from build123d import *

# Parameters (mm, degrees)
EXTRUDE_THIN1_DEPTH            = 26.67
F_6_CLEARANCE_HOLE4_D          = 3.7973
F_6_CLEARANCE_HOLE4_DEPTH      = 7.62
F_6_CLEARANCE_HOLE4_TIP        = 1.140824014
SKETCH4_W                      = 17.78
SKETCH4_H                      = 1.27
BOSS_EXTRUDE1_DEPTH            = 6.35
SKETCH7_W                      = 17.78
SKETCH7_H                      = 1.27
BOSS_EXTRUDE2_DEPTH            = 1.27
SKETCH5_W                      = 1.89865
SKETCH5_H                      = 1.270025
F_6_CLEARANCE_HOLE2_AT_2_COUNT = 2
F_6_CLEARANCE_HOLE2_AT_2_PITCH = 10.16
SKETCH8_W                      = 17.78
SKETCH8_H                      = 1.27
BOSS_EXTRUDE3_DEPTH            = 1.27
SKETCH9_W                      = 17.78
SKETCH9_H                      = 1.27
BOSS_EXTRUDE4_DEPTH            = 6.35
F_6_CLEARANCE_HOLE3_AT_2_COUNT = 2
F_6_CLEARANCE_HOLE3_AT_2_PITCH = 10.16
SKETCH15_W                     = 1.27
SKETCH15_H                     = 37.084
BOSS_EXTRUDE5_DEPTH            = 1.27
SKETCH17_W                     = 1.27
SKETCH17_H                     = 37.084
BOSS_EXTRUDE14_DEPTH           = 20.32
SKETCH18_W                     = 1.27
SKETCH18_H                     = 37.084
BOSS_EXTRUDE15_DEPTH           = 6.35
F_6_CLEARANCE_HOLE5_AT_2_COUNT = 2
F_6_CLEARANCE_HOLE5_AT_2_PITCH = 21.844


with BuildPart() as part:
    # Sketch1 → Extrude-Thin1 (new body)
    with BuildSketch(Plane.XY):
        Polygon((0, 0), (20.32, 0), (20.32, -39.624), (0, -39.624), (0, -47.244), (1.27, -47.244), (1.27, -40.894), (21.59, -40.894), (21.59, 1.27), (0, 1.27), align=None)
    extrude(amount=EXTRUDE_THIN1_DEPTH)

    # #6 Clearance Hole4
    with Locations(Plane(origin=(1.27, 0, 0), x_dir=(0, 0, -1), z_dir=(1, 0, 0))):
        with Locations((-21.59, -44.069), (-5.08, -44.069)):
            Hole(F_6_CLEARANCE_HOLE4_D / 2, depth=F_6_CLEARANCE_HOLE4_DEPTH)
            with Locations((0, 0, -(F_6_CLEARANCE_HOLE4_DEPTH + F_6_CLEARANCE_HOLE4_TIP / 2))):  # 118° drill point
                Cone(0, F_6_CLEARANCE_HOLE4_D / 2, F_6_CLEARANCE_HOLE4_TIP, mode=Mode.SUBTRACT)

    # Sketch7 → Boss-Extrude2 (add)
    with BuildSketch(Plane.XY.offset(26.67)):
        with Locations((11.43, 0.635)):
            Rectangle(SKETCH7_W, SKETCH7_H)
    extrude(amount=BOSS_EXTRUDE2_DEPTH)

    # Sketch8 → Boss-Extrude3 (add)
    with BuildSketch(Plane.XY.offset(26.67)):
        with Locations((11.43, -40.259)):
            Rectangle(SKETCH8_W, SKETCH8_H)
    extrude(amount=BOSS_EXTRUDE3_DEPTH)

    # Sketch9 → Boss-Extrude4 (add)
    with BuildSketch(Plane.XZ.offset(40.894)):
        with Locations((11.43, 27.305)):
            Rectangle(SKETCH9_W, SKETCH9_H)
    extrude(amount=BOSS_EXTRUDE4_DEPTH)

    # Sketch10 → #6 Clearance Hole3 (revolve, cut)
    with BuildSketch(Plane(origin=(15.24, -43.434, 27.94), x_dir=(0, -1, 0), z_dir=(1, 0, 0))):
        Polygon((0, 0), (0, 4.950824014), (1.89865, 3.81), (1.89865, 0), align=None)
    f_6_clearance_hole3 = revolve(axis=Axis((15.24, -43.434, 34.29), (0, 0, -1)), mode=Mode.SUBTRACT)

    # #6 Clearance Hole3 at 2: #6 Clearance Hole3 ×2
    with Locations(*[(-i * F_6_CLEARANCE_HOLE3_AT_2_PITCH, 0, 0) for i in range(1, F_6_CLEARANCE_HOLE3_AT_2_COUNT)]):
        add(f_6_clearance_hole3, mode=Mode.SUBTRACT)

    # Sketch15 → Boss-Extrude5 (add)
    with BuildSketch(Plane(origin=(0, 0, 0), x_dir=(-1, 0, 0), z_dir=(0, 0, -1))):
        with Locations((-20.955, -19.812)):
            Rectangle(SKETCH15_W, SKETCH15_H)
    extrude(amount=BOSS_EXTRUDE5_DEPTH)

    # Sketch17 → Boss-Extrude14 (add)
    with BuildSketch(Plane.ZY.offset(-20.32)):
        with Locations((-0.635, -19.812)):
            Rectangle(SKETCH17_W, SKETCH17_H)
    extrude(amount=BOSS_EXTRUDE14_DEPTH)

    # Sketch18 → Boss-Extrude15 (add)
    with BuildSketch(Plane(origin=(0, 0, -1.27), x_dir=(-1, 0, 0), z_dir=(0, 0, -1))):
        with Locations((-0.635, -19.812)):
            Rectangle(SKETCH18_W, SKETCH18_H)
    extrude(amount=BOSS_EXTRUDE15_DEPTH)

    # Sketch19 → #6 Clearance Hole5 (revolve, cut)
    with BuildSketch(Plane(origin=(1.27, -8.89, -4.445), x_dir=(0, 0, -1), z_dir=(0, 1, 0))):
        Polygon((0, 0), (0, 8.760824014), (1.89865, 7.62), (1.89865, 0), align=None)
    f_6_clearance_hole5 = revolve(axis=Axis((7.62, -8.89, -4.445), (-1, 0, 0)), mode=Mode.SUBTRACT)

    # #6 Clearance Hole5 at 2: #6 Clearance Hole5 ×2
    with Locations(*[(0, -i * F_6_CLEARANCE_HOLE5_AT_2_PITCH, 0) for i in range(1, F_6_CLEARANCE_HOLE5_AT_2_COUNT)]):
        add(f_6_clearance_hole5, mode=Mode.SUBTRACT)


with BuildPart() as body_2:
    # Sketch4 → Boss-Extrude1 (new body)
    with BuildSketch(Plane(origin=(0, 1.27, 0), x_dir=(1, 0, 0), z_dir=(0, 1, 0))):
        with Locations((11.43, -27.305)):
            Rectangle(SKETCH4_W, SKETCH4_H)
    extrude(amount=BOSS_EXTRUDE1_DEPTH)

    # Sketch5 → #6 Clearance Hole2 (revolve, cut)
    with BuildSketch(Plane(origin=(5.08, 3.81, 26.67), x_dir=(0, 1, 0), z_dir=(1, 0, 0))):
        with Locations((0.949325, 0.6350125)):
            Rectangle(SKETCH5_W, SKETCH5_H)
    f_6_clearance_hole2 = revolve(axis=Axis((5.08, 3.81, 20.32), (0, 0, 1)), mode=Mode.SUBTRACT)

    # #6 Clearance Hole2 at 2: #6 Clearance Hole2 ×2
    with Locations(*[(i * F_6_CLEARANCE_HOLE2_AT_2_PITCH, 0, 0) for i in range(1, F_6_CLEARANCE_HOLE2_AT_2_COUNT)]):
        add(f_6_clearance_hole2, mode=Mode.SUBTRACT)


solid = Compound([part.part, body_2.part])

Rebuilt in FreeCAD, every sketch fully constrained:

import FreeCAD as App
import Part
import Sketcher
from FreeCAD import Vector
Q = App.Units.Quantity


def add_polygon(sketch, points):
    """Adds a closed chain of lines whose ends are joined by coincident constraints."""
    first, n = sketch.GeometryCount, len(points)
    for a, b in zip(points, points[1:] + points[:1]):
        sketch.addGeometry(Part.LineSegment(App.Vector(*a, 0), App.Vector(*b, 0)), False)
    for i in range(n):
        sketch.addConstraint(Sketcher.Constraint("Coincident", first + i, 2, first + (i + 1) % n, 1))

doc = App.newDocument("Part")
body = doc.addObject("PartDesign::Body", "Body")

# Sketch on XY plane
sketch1 = doc.addObject("Sketcher::SketchObject", "Sketch")
body.addObject(sketch1)
sketch1.AttachmentSupport = (doc.XY_Plane, [""])
sketch1.MapMode = "FlatFace"
add_polygon(sketch1, [(0, 0), (20.3, 0), (20.3, -39.6), (0, -39.6), (0, -47.2), (1.3, -47.2), (1.3, -40.9), (21.6, -40.9), (21.6, 1.3), (0, 1.3)])  # lines 0-9
sketch1.addConstraint(Sketcher.Constraint("Horizontal", 0))
sketch1.addConstraint(Sketcher.Constraint("Vertical", 1))
sketch1.addConstraint(Sketcher.Constraint("Horizontal", 2))
sketch1.addConstraint(Sketcher.Constraint("Vertical", 3))
sketch1.addConstraint(Sketcher.Constraint("Horizontal", 4))
sketch1.addConstraint(Sketcher.Constraint("Vertical", 5))
sketch1.addConstraint(Sketcher.Constraint("Horizontal", 6))
sketch1.addConstraint(Sketcher.Constraint("Vertical", 7))
sketch1.addConstraint(Sketcher.Constraint("Horizontal", 8))
sketch1.addConstraint(Sketcher.Constraint("Vertical", 9))
sketch1.addConstraint(Sketcher.Constraint("Coincident", 9, 2, -1, 1))
sketch1.addConstraint(Sketcher.Constraint("PointOnObject", 2, 2, -2))
sketch1.addConstraint(Sketcher.Constraint("Equal", 2, 6))
sketch1.addConstraint(Sketcher.Constraint("Equal", 4, 9))
sketch1.addConstraint(Sketcher.Constraint("DistanceX", 0, 1, 0, 2, Q("0.8 in")))
sketch1.addConstraint(Sketcher.Constraint("DistanceY", 3, 2, 3, 1, Q("0.3 in")))
sketch1.addConstraint(Sketcher.Constraint("DistanceX", 4, 1, 4, 2, Q("0.05 in")))
sketch1.addConstraint(Sketcher.Constraint("DistanceY", 1, 2, 1, 1, Q("1.56 in")))
sketch1.addConstraint(Sketcher.Constraint("DistanceY", 5, 1, 5, 2, Q("0.25 in")))
pad1 = doc.addObject("PartDesign::Pad", "Pad")
body.addObject(pad1)
pad1.Profile = sketch1
pad1.Length = Q("1.05 in")

# Sketch on YZ plane
sketch2 = doc.addObject("Sketcher::SketchObject", "Sketch001")
body.addObject(sketch2)
sketch2.AttachmentSupport = (doc.YZ_Plane, [""])
sketch2.MapMode = "FlatFace"
sketch2.AttachmentOffset = App.Placement(Vector(0, 0, 0.05 * 25.4), App.Rotation())
sketch2.addGeometry(Part.Circle(Vector(-44.1, 21.6, 0), Vector(0, 0, 1), 1.9), False)
sketch2.addGeometry(Part.Circle(Vector(-44.1, 5.1, 0), Vector(0, 0, 1), 1.9), False)
sketch2.addConstraint(Sketcher.Constraint("Equal", 0, 1))
sketch2.addConstraint(Sketcher.Constraint("Vertical", 0, 3, 1, 3))
sketch2.addConstraint(Sketcher.Constraint("Diameter", 0, Q("0.1495 in")))
sketch2.addConstraint(Sketcher.Constraint("DistanceY", -1, 1, 1, 3, Q("0.2 in")))
sketch2.addConstraint(Sketcher.Constraint("DistanceY", -1, 1, 0, 3, Q("0.85 in")))
sketch2.addConstraint(Sketcher.Constraint("DistanceX", 0, 3, -1, 1, Q("1.735 in")))
doc.recompute()
hole = doc.addObject("PartDesign::Hole", "Hole")
body.addObject(hole)
hole.Profile = sketch2
hole.ThreadType = "None"
hole.Diameter = Q("0.1495 in")
hole.DepthType = "Dimension"
hole.Depth = Q("0.3 in")
hole.DrillPoint = "Angled"
hole.DrillPointAngle = 118

# Sketch on XY plane
sketch3 = doc.addObject("Sketcher::SketchObject", "Sketch002")
body.addObject(sketch3)
sketch3.AttachmentSupport = (doc.XY_Plane, [""])
sketch3.MapMode = "FlatFace"
sketch3.AttachmentOffset = App.Placement(Vector(0, 0, 1.05 * 25.4), App.Rotation())
add_polygon(sketch3, [(2.5, 1.3), (2.5, 0), (20.3, 0), (20.3, 1.3)])  # lines 0-3
sketch3.addConstraint(Sketcher.Constraint("Vertical", 0))
sketch3.addConstraint(Sketcher.Constraint("Horizontal", 1))
sketch3.addConstraint(Sketcher.Constraint("Vertical", 2))
sketch3.addConstraint(Sketcher.Constraint("Horizontal", 3))
sketch3.addConstraint(Sketcher.Constraint("PointOnObject", 0, 2, -1))
sketch3.addConstraint(Sketcher.Constraint("DistanceX", 1, 1, 1, 2, Q("0.7 in")))
sketch3.addConstraint(Sketcher.Constraint("DistanceY", 0, 2, 0, 1, Q("0.05 in")))
sketch3.addConstraint(Sketcher.Constraint("DistanceX", -1, 1, 0, 2, Q("0.1 in")))
pad2 = doc.addObject("PartDesign::Pad", "Pad001")
body.addObject(pad2)
pad2.Profile = sketch3
pad2.Length = Q("0.05 in")

# Sketch on XY plane
sketch4 = doc.addObject("Sketcher::SketchObject", "Sketch003")
body.addObject(sketch4)
sketch4.AttachmentSupport = (doc.XY_Plane, [""])
sketch4.MapMode = "FlatFace"
sketch4.AttachmentOffset = App.Placement(Vector(0, 0, 1.05 * 25.4), App.Rotation())
add_polygon(sketch4, [(2.5, -39.6), (2.5, -40.9), (20.3, -40.9), (20.3, -39.6)])  # lines 0-3
sketch4.addConstraint(Sketcher.Constraint("Vertical", 0))
sketch4.addConstraint(Sketcher.Constraint("Horizontal", 1))
sketch4.addConstraint(Sketcher.Constraint("Vertical", 2))
sketch4.addConstraint(Sketcher.Constraint("Horizontal", 3))
sketch4.addConstraint(Sketcher.Constraint("DistanceX", 1, 1, 1, 2, Q("0.7 in")))
sketch4.addConstraint(Sketcher.Constraint("DistanceY", 0, 2, 0, 1, Q("0.05 in")))
sketch4.addConstraint(Sketcher.Constraint("DistanceX", -1, 1, 0, 2, Q("0.1 in")))
sketch4.addConstraint(Sketcher.Constraint("DistanceY", 0, 2, -1, 1, Q("1.61 in")))
pad3 = doc.addObject("PartDesign::Pad", "Pad002")
body.addObject(pad3)
pad3.Profile = sketch4
pad3.Length = Q("0.05 in")

# Sketch on XZ plane
sketch5 = doc.addObject("Sketcher::SketchObject", "Sketch004")
body.addObject(sketch5)
sketch5.AttachmentSupport = (doc.XZ_Plane, [""])
sketch5.MapMode = "FlatFace"
sketch5.AttachmentOffset = App.Placement(Vector(0, 0, 1.61 * 25.4), App.Rotation())
add_polygon(sketch5, [(2.5, 27.9), (2.5, 26.7), (20.3, 26.7), (20.3, 27.9)])  # lines 0-3
sketch5.addConstraint(Sketcher.Constraint("Vertical", 0))
sketch5.addConstraint(Sketcher.Constraint("Horizontal", 1))
sketch5.addConstraint(Sketcher.Constraint("Vertical", 2))
sketch5.addConstraint(Sketcher.Constraint("Horizontal", 3))
sketch5.addConstraint(Sketcher.Constraint("DistanceX", 1, 1, 1, 2, Q("0.7 in")))
sketch5.addConstraint(Sketcher.Constraint("DistanceY", 0, 2, 0, 1, Q("0.05 in")))
sketch5.addConstraint(Sketcher.Constraint("DistanceX", -1, 1, 0, 2, Q("0.1 in")))
sketch5.addConstraint(Sketcher.Constraint("DistanceY", -1, 1, 2, 2, Q("1.1 in")))
pad4 = doc.addObject("PartDesign::Pad", "Pad003")
body.addObject(pad4)
pad4.Profile = sketch5
pad4.Length = Q("0.25 in")

# Sketch on YZ plane
sketch6 = doc.addObject("Sketcher::SketchObject", "Sketch005")
body.addObject(sketch6)
sketch6.AttachmentSupport = (doc.YZ_Plane, [""])
sketch6.MapMode = "FlatFace"
sketch6.AttachmentOffset = App.Placement(Vector(0, 0, 0.6 * 25.4), App.Rotation())
add_polygon(sketch6, [(-43.4, 23), (-43.4, 27.9), (-45.3, 27.9), (-45.3, 24.1)])  # lines 0-3
sketch6.addGeometry(Part.LineSegment(Vector(-43.4, 27.9, 0), Vector(-43.4, 23, 0)), True)  # axis
sketch6.addConstraint(Sketcher.Constraint("Vertical", 0))
sketch6.addConstraint(Sketcher.Constraint("Horizontal", 1))
sketch6.addConstraint(Sketcher.Constraint("Vertical", 2))
sketch6.addConstraint(Sketcher.Constraint("Vertical", 4))
sketch6.addConstraint(Sketcher.Constraint("Coincident", 4, 1, 0, 2))
sketch6.addConstraint(Sketcher.Constraint("Equal", 0, 4))
sketch6.addConstraint(Sketcher.Constraint("Angle", 3, Q("-31 deg")))
sketch6.addConstraint(Sketcher.Constraint("DistanceY", 2, 2, 2, 1, Q("0.15 in")))
sketch6.addConstraint(Sketcher.Constraint("DistanceY", -1, 1, 0, 2, Q("1.1 in")))
sketch6.addConstraint(Sketcher.Constraint("DistanceX", 0, 2, -1, 1, Q("1.71 in")))
sketch6.addConstraint(Sketcher.Constraint("DistanceX", 1, 2, 1, 1, Q("1.89865 mm")))
groove = doc.addObject("PartDesign::Groove", "Groove")
body.addObject(groove)
groove.Profile = sketch6
groove.ReferenceAxis = (sketch6, ["Axis0"])
groove.Angle = 360
doc.recompute()

linearpattern = doc.addObject("PartDesign::LinearPattern", "LinearPattern")
body.addObject(linearpattern)
linearpattern.Originals = [groove]
linearpattern.Direction = (doc.X_Axis, [""])
linearpattern.Mode = "offset"
linearpattern.Offset = Q("0.4 in")
linearpattern.Occurrences = 2
linearpattern.Reversed = True
body.Tip = linearpattern

# Sketch on XY plane
sketch7 = doc.addObject("Sketcher::SketchObject", "Sketch006")
body.addObject(sketch7)
sketch7.AttachmentSupport = (doc.XY_Plane, [""])
sketch7.MapMode = "FlatFace"
add_polygon(sketch7, [(21.6, -1.3), (21.6, -38.4), (20.3, -38.4), (20.3, -1.3)])  # lines 0-3
sketch7.addConstraint(Sketcher.Constraint("Vertical", 0))
sketch7.addConstraint(Sketcher.Constraint("Horizontal", 1))
sketch7.addConstraint(Sketcher.Constraint("Vertical", 2))
sketch7.addConstraint(Sketcher.Constraint("Horizontal", 3))
sketch7.addConstraint(Sketcher.Constraint("DistanceX", 1, 2, 1, 1, Q("0.05 in")))
sketch7.addConstraint(Sketcher.Constraint("DistanceY", 0, 2, 0, 1, Q("1.46 in")))
sketch7.addConstraint(Sketcher.Constraint("DistanceX", -1, 1, 1, 2, Q("0.8 in")))
sketch7.addConstraint(Sketcher.Constraint("DistanceY", 0, 2, -1, 1, Q("1.51 in")))
pad5 = doc.addObject("PartDesign::Pad", "Pad004")
body.addObject(pad5)
pad5.Profile = sketch7
pad5.Length = Q("0.05 in")
pad5.Reversed = True

# Sketch on YZ plane
sketch8 = doc.addObject("Sketcher::SketchObject", "Sketch007")
body.addObject(sketch8)
sketch8.AttachmentSupport = (doc.YZ_Plane, [""])
sketch8.MapMode = "FlatFace"
sketch8.AttachmentOffset = App.Placement(Vector(0, 0, 0.8 * 25.4), App.Rotation())
add_polygon(sketch8, [(-1.3, -1.3), (-38.4, -1.3), (-38.4, 0), (-1.3, 0)])  # lines 0-3
sketch8.addConstraint(Sketcher.Constraint("Horizontal", 0))
sketch8.addConstraint(Sketcher.Constraint("Vertical", 1))
sketch8.addConstraint(Sketcher.Constraint("Horizontal", 2))
sketch8.addConstraint(Sketcher.Constraint("Vertical", 3))
sketch8.addConstraint(Sketcher.Constraint("PointOnObject", 1, 2, -1))
sketch8.addConstraint(Sketcher.Constraint("DistanceX", 0, 2, 0, 1, Q("1.46 in")))
sketch8.addConstraint(Sketcher.Constraint("DistanceY", 1, 1, 1, 2, Q("0.05 in")))
sketch8.addConstraint(Sketcher.Constraint("DistanceX", 0, 2, -1, 1, Q("1.51 in")))
pad6 = doc.addObject("PartDesign::Pad", "Pad005")
body.addObject(pad6)
pad6.Profile = sketch8
pad6.Length = Q("0.8 in")
pad6.Reversed = True

# Sketch on XY plane
sketch9 = doc.addObject("Sketcher::SketchObject", "Sketch008")
body.addObject(sketch9)
sketch9.AttachmentSupport = (doc.XY_Plane, [""])
sketch9.MapMode = "FlatFace"
sketch9.AttachmentOffset = App.Placement(Vector(0, 0, -0.05 * 25.4), App.Rotation())
add_polygon(sketch9, [(1.3, -1.3), (1.3, -38.4), (0, -38.4), (0, -1.3)])  # lines 0-3
sketch9.addConstraint(Sketcher.Constraint("Vertical", 0))
sketch9.addConstraint(Sketcher.Constraint("Horizontal", 1))
sketch9.addConstraint(Sketcher.Constraint("Vertical", 2))
sketch9.addConstraint(Sketcher.Constraint("Horizontal", 3))
sketch9.addConstraint(Sketcher.Constraint("PointOnObject", 1, 2, -2))
sketch9.addConstraint(Sketcher.Constraint("DistanceX", 1, 2, 1, 1, Q("0.05 in")))
sketch9.addConstraint(Sketcher.Constraint("DistanceY", 0, 2, 0, 1, Q("1.46 in")))
sketch9.addConstraint(Sketcher.Constraint("DistanceY", 0, 2, -1, 1, Q("1.51 in")))
pad7 = doc.addObject("PartDesign::Pad", "Pad006")
body.addObject(pad7)
pad7.Profile = sketch9
pad7.Length = Q("0.25 in")
pad7.Reversed = True

# Sketch on XZ plane
sketch10 = doc.addObject("Sketcher::SketchObject", "Sketch009")
body.addObject(sketch10)
sketch10.AttachmentSupport = (doc.XZ_Plane, [""])
sketch10.MapMode = "FlatFace"
sketch10.AttachmentOffset = App.Placement(Vector(0, 0, 0.35 * 25.4), App.Rotation())
add_polygon(sketch10, [(-7.5, -4.4), (1.3, -4.4), (1.3, -6.3), (-6.3, -6.3)])  # lines 0-3
sketch10.addGeometry(Part.LineSegment(Vector(1.3, -4.4, 0), Vector(-7.5, -4.4, 0)), True)  # axis
sketch10.addConstraint(Sketcher.Constraint("Horizontal", 0))
sketch10.addConstraint(Sketcher.Constraint("Vertical", 1))
sketch10.addConstraint(Sketcher.Constraint("Horizontal", 2))
sketch10.addConstraint(Sketcher.Constraint("Horizontal", 4))
sketch10.addConstraint(Sketcher.Constraint("Coincident", 4, 1, 0, 2))
sketch10.addConstraint(Sketcher.Constraint("Equal", 0, 4))
sketch10.addConstraint(Sketcher.Constraint("DistanceX", 2, 2, 2, 1, Q("0.3 in")))
sketch10.addConstraint(Sketcher.Constraint("Angle", 3, Q("121 deg")))
sketch10.addConstraint(Sketcher.Constraint("DistanceX", -1, 1, 0, 2, Q("0.05 in")))
sketch10.addConstraint(Sketcher.Constraint("DistanceY", 0, 2, -1, 1, Q("0.175 in")))
sketch10.addConstraint(Sketcher.Constraint("DistanceY", 1, 2, 1, 1, Q("1.89865 mm")))
groove2 = doc.addObject("PartDesign::Groove", "Groove001")
body.addObject(groove2)
groove2.Profile = sketch10
groove2.ReferenceAxis = (sketch10, ["Axis0"])
groove2.Angle = 360
doc.recompute()

linearpattern2 = doc.addObject("PartDesign::LinearPattern", "LinearPattern001")
body.addObject(linearpattern2)
linearpattern2.Originals = [groove2]
linearpattern2.Direction = (doc.Y_Axis, [""])
linearpattern2.Mode = "offset"
linearpattern2.Offset = Q("0.86 in")
linearpattern2.Occurrences = 2
linearpattern2.Reversed = True
body.Tip = linearpattern2
body2 = doc.addObject("PartDesign::Body", "Body001")

# Sketch on XZ plane
sketch11 = doc.addObject("Sketcher::SketchObject", "Sketch010")
body2.addObject(sketch11)
sketch11.AttachmentSupport = (doc.getObject("XZ_Plane001"), [""])
sketch11.MapMode = "FlatFace"
sketch11.AttachmentOffset = App.Placement(Vector(0, 0, -0.05 * 25.4), App.Rotation())
add_polygon(sketch11, [(2.5, 26.7), (2.5, 27.9), (20.3, 27.9), (20.3, 26.7)])  # lines 0-3
sketch11.addConstraint(Sketcher.Constraint("Vertical", 0))
sketch11.addConstraint(Sketcher.Constraint("Horizontal", 1))
sketch11.addConstraint(Sketcher.Constraint("Vertical", 2))
sketch11.addConstraint(Sketcher.Constraint("Horizontal", 3))
sketch11.addConstraint(Sketcher.Constraint("DistanceX", 1, 1, 1, 2, Q("0.7 in")))
sketch11.addConstraint(Sketcher.Constraint("DistanceY", 0, 1, 0, 2, Q("0.05 in")))
sketch11.addConstraint(Sketcher.Constraint("DistanceX", -1, 1, 0, 2, Q("0.1 in")))
sketch11.addConstraint(Sketcher.Constraint("DistanceY", -1, 1, 0, 2, Q("1.1 in")))
pad8 = doc.addObject("PartDesign::Pad", "Pad007")
body2.addObject(pad8)
pad8.Profile = sketch11
pad8.Length = Q("0.25 in")
pad8.Reversed = True

# Sketch on YZ plane
sketch12 = doc.addObject("Sketcher::SketchObject", "Sketch011")
body2.addObject(sketch12)
sketch12.AttachmentSupport = (doc.getObject("YZ_Plane001"), [""])
sketch12.MapMode = "FlatFace"
sketch12.AttachmentOffset = App.Placement(Vector(0, 0, 0.2 * 25.4), App.Rotation())
add_polygon(sketch12, [(3.8, 27.9), (3.8, 26.7), (5.7, 26.7), (5.7, 27.9)])  # lines 0-3
sketch12.addGeometry(Part.LineSegment(Vector(3.8, 26.7, 0), Vector(3.8, 27.9, 0)), True)  # axis
sketch12.addConstraint(Sketcher.Constraint("Vertical", 0))
sketch12.addConstraint(Sketcher.Constraint("Horizontal", 1))
sketch12.addConstraint(Sketcher.Constraint("Vertical", 2))
sketch12.addConstraint(Sketcher.Constraint("Horizontal", 3))
sketch12.addConstraint(Sketcher.Constraint("Vertical", 4))
sketch12.addConstraint(Sketcher.Constraint("Coincident", 4, 1, 0, 2))
sketch12.addConstraint(Sketcher.Constraint("Horizontal", 2, 2, 4, 2))
sketch12.addConstraint(Sketcher.Constraint("DistanceX", -1, 1, 0, 2, Q("0.15 in")))
sketch12.addConstraint(Sketcher.Constraint("DistanceY", -1, 1, 0, 2, Q("1.05 in")))
sketch12.addConstraint(Sketcher.Constraint("DistanceX", 1, 1, 1, 2, Q("1.89865 mm")))
sketch12.addConstraint(Sketcher.Constraint("DistanceY", 0, 2, 0, 1, Q("1.270025 mm")))
groove3 = doc.addObject("PartDesign::Groove", "Groove002")
body2.addObject(groove3)
groove3.Profile = sketch12
groove3.ReferenceAxis = (sketch12, ["Axis0"])
groove3.Angle = 360
doc.recompute()

linearpattern3 = doc.addObject("PartDesign::LinearPattern", "LinearPattern002")
body2.addObject(linearpattern3)
linearpattern3.Originals = [groove3]
linearpattern3.Direction = (doc.getObject("X_Axis001"), [""])
linearpattern3.Mode = "offset"
linearpattern3.Offset = Q("0.4 in")
linearpattern3.Occurrences = 2
body2.Tip = linearpattern3

doc.recompute()
